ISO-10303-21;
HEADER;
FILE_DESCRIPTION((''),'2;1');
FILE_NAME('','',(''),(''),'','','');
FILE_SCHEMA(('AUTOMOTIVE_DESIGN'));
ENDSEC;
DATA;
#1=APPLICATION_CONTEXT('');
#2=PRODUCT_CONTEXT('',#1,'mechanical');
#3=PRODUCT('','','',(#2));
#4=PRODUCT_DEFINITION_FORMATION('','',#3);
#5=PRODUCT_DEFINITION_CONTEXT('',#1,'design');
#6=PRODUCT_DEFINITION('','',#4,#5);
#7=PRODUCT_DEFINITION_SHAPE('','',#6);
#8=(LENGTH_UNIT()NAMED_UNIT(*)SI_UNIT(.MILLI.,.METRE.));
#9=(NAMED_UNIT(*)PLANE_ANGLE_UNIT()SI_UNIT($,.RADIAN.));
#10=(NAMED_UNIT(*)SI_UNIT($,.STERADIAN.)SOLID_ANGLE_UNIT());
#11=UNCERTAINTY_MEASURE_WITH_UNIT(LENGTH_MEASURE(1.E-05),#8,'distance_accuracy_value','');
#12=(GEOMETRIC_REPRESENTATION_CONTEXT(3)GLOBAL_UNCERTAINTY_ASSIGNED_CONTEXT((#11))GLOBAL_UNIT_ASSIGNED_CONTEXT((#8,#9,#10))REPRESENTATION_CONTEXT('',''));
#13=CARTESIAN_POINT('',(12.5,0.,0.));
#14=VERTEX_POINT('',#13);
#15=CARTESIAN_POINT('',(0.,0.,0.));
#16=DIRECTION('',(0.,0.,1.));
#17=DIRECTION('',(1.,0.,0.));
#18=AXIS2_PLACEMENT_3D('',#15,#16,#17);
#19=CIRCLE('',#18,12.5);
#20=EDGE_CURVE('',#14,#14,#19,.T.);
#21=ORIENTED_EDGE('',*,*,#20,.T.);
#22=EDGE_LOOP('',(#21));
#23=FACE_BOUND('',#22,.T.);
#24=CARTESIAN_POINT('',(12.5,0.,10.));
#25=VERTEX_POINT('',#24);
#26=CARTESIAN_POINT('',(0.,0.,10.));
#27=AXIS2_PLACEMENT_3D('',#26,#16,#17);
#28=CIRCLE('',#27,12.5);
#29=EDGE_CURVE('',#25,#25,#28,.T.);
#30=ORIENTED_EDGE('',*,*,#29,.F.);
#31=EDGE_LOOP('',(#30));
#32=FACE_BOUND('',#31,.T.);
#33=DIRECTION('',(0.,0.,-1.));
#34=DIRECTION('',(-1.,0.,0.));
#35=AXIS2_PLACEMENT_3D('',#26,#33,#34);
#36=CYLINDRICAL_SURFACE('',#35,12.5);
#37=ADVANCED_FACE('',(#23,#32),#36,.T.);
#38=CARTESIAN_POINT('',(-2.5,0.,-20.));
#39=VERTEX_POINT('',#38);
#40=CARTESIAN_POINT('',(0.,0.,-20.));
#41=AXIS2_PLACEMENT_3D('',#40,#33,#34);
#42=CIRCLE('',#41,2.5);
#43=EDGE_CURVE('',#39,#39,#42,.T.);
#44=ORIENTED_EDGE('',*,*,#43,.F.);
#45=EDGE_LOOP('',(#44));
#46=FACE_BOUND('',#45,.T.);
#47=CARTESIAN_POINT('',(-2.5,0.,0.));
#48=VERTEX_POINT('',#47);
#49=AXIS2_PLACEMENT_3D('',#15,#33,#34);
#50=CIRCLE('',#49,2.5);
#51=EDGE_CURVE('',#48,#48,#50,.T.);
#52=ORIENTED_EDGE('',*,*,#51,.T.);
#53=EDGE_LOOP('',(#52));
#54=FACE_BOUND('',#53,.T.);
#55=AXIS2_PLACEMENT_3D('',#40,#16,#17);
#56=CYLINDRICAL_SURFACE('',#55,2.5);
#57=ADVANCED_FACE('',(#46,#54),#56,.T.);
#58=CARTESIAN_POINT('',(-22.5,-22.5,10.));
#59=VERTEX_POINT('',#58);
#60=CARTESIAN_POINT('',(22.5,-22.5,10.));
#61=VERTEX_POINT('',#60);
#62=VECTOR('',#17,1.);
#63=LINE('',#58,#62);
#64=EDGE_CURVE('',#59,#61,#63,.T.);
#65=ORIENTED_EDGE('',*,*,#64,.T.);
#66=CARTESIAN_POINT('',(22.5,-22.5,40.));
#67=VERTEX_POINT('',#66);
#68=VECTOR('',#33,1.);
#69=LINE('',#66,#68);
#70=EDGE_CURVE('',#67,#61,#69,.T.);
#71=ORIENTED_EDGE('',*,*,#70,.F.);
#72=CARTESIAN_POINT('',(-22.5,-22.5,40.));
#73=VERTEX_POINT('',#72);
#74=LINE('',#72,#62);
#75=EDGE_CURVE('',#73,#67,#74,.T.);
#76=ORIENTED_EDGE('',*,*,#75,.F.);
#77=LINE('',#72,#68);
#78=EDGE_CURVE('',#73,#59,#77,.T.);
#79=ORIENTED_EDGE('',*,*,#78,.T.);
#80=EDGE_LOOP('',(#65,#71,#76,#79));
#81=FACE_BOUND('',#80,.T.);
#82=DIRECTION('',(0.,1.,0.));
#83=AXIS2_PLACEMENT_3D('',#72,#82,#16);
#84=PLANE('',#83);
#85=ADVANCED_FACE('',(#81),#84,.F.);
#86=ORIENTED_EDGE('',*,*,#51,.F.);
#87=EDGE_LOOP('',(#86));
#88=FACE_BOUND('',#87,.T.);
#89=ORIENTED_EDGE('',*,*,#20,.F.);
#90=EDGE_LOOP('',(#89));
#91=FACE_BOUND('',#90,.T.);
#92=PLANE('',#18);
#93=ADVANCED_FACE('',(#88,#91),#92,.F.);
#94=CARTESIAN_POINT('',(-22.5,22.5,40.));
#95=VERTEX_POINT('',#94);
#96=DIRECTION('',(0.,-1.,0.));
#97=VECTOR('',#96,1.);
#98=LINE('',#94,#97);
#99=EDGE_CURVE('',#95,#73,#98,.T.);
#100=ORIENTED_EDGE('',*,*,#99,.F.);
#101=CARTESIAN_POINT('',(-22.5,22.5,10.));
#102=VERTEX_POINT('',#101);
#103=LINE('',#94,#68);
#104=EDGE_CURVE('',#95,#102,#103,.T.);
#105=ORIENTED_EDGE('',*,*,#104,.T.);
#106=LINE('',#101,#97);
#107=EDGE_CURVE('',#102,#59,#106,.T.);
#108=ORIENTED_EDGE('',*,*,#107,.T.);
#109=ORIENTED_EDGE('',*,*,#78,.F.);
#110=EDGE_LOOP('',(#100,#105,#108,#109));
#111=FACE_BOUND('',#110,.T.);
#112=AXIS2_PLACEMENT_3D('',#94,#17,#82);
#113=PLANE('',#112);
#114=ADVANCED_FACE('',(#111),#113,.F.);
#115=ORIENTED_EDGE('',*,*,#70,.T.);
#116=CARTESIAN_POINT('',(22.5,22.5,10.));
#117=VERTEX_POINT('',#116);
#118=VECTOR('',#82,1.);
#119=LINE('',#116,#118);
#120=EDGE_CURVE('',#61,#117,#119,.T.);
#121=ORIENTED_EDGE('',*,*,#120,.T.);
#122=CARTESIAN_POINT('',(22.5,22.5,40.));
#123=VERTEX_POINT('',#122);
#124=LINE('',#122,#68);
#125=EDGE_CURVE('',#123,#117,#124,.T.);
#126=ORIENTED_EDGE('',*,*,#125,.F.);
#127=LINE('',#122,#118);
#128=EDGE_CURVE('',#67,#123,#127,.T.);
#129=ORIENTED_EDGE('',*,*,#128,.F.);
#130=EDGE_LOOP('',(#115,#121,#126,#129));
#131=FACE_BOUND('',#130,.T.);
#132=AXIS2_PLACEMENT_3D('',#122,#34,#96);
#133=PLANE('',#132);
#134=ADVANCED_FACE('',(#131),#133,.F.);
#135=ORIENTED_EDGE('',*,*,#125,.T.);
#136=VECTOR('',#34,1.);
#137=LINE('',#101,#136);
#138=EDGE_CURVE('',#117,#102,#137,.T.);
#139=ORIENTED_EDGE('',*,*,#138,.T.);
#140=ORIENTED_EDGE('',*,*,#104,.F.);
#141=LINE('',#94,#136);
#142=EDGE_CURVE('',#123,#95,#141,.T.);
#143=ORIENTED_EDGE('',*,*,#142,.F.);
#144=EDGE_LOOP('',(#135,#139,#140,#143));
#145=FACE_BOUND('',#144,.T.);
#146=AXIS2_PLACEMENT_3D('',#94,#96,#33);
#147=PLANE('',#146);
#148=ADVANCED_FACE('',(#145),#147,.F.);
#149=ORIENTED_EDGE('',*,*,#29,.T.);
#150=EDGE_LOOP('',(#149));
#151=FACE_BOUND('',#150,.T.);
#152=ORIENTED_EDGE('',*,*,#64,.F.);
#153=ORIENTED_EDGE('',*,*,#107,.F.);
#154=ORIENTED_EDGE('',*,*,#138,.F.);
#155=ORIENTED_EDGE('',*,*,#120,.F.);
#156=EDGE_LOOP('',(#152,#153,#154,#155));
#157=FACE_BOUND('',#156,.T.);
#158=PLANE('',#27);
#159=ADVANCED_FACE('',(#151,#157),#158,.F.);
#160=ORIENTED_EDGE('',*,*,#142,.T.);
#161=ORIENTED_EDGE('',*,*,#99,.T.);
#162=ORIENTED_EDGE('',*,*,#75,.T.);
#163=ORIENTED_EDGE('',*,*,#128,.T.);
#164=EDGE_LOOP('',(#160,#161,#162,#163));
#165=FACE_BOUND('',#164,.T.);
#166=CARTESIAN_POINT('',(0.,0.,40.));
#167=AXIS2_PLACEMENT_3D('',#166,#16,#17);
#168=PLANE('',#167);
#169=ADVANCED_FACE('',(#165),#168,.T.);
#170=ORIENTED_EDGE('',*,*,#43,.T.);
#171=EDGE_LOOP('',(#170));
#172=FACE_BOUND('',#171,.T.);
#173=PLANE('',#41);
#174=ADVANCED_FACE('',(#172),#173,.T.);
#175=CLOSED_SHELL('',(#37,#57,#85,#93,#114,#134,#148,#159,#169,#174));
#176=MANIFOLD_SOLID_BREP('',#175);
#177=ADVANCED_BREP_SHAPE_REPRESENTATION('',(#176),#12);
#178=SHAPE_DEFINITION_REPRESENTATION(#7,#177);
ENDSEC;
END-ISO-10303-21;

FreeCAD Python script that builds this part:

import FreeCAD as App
import Part
import Sketcher

doc = App.newDocument("Part")
params = doc.addObject("Spreadsheet::Sheet", "Params")
for row, (alias, value) in enumerate([
    ("sketch1_diameter", "25 mm"),
    ("pad1_length", "10 mm"),
    ("sketch2_width", "45 mm"),
    ("pad2_length", "30 mm"),
    ("sketch3_diameter", "5 mm"),
    ("pad3_length", "20 mm"),
], start=1):
    params.set(f"A{row}", alias)
    params.set(f"B{row}", "=" + value)
    params.setAlias(f"B{row}", alias)

body = doc.addObject("PartDesign::Body", "Body")

# Sketch on XY plane
sketch1 = doc.addObject("Sketcher::SketchObject", "Sketch")
body.addObject(sketch1)
sketch1.AttachmentSupport = (doc.XY_Plane, [""])
sketch1.MapMode = "FlatFace"
sketch1.addGeometry(Part.Circle(App.Vector(0, 0, 0), App.Vector(0, 0, 1), 12), False)
sketch1.addConstraint([
    Sketcher.Constraint("Coincident", 0, 3, -1, 1),
    Sketcher.Constraint("Diameter", 0, 25.0),
])
sketch1.setExpression("Constraints[1]", "Params.sketch1_diameter")
pad1 = doc.addObject("PartDesign::Pad", "Pad")
body.addObject(pad1)
pad1.Profile = sketch1
pad1.setExpression("Length", "Params.pad1_length")

# Sketch on XY plane
sketch2 = doc.addObject("Sketcher::SketchObject", "Sketch001")
body.addObject(sketch2)
sketch2.AttachmentSupport = (doc.XY_Plane, [""])
sketch2.MapMode = "FlatFace"
sketch2.AttachmentOffset = App.Placement(App.Vector(0, 0, 10), App.Rotation())
sketch2.addGeometry([
    Part.LineSegment(App.Vector(-22, 22, 0), App.Vector(-22, -22, 0)),
    Part.LineSegment(App.Vector(-22, -22, 0), App.Vector(22, -22, 0)),
    Part.LineSegment(App.Vector(22, -22, 0), App.Vector(22, 22, 0)),
    Part.LineSegment(App.Vector(22, 22, 0), App.Vector(-22, 22, 0)),
], False)
sketch2.addConstraint([
    Sketcher.Constraint("Coincident", 0, 2, 1, 1),
    Sketcher.Constraint("Coincident", 1, 2, 2, 1),
    Sketcher.Constraint("Coincident", 2, 2, 3, 1),
    Sketcher.Constraint("Coincident", 3, 2, 0, 1),
    Sketcher.Constraint("Vertical", 0),
    Sketcher.Constraint("Horizontal", 1),
    Sketcher.Constraint("Vertical", 2),
    Sketcher.Constraint("Horizontal", 3),
    Sketcher.Constraint("Symmetric", 0, 2, 2, 2, -1, 1),
    Sketcher.Constraint("Equal", 3, 0),
    Sketcher.Constraint("DistanceX", 1, 1, 1, 2, 45.0),
])
sketch2.setExpression("Constraints[10]", "Params.sketch2_width")
pad2 = doc.addObject("PartDesign::Pad", "Pad001")
body.addObject(pad2)
pad2.Profile = sketch2
pad2.setExpression("Length", "Params.pad2_length")

# Sketch on XY plane
sketch3 = doc.addObject("Sketcher::SketchObject", "Sketch002")
body.addObject(sketch3)
sketch3.AttachmentSupport = (doc.XY_Plane, [""])
sketch3.MapMode = "FlatFace"
sketch3.addGeometry(Part.Circle(App.Vector(0, 0, 0), App.Vector(0, 0, 1), 2.5), False)
sketch3.addConstraint([
    Sketcher.Constraint("Coincident", 0, 3, -1, 1),
    Sketcher.Constraint("Diameter", 0, 5.0),
])
sketch3.setExpression("Constraints[1]", "Params.sketch3_diameter")
pad3 = doc.addObject("PartDesign::Pad", "Pad002")
body.addObject(pad3)
pad3.Profile = sketch3
pad3.setExpression("Length", "Params.pad3_length")
pad3.Reversed = True

doc.recompute()
